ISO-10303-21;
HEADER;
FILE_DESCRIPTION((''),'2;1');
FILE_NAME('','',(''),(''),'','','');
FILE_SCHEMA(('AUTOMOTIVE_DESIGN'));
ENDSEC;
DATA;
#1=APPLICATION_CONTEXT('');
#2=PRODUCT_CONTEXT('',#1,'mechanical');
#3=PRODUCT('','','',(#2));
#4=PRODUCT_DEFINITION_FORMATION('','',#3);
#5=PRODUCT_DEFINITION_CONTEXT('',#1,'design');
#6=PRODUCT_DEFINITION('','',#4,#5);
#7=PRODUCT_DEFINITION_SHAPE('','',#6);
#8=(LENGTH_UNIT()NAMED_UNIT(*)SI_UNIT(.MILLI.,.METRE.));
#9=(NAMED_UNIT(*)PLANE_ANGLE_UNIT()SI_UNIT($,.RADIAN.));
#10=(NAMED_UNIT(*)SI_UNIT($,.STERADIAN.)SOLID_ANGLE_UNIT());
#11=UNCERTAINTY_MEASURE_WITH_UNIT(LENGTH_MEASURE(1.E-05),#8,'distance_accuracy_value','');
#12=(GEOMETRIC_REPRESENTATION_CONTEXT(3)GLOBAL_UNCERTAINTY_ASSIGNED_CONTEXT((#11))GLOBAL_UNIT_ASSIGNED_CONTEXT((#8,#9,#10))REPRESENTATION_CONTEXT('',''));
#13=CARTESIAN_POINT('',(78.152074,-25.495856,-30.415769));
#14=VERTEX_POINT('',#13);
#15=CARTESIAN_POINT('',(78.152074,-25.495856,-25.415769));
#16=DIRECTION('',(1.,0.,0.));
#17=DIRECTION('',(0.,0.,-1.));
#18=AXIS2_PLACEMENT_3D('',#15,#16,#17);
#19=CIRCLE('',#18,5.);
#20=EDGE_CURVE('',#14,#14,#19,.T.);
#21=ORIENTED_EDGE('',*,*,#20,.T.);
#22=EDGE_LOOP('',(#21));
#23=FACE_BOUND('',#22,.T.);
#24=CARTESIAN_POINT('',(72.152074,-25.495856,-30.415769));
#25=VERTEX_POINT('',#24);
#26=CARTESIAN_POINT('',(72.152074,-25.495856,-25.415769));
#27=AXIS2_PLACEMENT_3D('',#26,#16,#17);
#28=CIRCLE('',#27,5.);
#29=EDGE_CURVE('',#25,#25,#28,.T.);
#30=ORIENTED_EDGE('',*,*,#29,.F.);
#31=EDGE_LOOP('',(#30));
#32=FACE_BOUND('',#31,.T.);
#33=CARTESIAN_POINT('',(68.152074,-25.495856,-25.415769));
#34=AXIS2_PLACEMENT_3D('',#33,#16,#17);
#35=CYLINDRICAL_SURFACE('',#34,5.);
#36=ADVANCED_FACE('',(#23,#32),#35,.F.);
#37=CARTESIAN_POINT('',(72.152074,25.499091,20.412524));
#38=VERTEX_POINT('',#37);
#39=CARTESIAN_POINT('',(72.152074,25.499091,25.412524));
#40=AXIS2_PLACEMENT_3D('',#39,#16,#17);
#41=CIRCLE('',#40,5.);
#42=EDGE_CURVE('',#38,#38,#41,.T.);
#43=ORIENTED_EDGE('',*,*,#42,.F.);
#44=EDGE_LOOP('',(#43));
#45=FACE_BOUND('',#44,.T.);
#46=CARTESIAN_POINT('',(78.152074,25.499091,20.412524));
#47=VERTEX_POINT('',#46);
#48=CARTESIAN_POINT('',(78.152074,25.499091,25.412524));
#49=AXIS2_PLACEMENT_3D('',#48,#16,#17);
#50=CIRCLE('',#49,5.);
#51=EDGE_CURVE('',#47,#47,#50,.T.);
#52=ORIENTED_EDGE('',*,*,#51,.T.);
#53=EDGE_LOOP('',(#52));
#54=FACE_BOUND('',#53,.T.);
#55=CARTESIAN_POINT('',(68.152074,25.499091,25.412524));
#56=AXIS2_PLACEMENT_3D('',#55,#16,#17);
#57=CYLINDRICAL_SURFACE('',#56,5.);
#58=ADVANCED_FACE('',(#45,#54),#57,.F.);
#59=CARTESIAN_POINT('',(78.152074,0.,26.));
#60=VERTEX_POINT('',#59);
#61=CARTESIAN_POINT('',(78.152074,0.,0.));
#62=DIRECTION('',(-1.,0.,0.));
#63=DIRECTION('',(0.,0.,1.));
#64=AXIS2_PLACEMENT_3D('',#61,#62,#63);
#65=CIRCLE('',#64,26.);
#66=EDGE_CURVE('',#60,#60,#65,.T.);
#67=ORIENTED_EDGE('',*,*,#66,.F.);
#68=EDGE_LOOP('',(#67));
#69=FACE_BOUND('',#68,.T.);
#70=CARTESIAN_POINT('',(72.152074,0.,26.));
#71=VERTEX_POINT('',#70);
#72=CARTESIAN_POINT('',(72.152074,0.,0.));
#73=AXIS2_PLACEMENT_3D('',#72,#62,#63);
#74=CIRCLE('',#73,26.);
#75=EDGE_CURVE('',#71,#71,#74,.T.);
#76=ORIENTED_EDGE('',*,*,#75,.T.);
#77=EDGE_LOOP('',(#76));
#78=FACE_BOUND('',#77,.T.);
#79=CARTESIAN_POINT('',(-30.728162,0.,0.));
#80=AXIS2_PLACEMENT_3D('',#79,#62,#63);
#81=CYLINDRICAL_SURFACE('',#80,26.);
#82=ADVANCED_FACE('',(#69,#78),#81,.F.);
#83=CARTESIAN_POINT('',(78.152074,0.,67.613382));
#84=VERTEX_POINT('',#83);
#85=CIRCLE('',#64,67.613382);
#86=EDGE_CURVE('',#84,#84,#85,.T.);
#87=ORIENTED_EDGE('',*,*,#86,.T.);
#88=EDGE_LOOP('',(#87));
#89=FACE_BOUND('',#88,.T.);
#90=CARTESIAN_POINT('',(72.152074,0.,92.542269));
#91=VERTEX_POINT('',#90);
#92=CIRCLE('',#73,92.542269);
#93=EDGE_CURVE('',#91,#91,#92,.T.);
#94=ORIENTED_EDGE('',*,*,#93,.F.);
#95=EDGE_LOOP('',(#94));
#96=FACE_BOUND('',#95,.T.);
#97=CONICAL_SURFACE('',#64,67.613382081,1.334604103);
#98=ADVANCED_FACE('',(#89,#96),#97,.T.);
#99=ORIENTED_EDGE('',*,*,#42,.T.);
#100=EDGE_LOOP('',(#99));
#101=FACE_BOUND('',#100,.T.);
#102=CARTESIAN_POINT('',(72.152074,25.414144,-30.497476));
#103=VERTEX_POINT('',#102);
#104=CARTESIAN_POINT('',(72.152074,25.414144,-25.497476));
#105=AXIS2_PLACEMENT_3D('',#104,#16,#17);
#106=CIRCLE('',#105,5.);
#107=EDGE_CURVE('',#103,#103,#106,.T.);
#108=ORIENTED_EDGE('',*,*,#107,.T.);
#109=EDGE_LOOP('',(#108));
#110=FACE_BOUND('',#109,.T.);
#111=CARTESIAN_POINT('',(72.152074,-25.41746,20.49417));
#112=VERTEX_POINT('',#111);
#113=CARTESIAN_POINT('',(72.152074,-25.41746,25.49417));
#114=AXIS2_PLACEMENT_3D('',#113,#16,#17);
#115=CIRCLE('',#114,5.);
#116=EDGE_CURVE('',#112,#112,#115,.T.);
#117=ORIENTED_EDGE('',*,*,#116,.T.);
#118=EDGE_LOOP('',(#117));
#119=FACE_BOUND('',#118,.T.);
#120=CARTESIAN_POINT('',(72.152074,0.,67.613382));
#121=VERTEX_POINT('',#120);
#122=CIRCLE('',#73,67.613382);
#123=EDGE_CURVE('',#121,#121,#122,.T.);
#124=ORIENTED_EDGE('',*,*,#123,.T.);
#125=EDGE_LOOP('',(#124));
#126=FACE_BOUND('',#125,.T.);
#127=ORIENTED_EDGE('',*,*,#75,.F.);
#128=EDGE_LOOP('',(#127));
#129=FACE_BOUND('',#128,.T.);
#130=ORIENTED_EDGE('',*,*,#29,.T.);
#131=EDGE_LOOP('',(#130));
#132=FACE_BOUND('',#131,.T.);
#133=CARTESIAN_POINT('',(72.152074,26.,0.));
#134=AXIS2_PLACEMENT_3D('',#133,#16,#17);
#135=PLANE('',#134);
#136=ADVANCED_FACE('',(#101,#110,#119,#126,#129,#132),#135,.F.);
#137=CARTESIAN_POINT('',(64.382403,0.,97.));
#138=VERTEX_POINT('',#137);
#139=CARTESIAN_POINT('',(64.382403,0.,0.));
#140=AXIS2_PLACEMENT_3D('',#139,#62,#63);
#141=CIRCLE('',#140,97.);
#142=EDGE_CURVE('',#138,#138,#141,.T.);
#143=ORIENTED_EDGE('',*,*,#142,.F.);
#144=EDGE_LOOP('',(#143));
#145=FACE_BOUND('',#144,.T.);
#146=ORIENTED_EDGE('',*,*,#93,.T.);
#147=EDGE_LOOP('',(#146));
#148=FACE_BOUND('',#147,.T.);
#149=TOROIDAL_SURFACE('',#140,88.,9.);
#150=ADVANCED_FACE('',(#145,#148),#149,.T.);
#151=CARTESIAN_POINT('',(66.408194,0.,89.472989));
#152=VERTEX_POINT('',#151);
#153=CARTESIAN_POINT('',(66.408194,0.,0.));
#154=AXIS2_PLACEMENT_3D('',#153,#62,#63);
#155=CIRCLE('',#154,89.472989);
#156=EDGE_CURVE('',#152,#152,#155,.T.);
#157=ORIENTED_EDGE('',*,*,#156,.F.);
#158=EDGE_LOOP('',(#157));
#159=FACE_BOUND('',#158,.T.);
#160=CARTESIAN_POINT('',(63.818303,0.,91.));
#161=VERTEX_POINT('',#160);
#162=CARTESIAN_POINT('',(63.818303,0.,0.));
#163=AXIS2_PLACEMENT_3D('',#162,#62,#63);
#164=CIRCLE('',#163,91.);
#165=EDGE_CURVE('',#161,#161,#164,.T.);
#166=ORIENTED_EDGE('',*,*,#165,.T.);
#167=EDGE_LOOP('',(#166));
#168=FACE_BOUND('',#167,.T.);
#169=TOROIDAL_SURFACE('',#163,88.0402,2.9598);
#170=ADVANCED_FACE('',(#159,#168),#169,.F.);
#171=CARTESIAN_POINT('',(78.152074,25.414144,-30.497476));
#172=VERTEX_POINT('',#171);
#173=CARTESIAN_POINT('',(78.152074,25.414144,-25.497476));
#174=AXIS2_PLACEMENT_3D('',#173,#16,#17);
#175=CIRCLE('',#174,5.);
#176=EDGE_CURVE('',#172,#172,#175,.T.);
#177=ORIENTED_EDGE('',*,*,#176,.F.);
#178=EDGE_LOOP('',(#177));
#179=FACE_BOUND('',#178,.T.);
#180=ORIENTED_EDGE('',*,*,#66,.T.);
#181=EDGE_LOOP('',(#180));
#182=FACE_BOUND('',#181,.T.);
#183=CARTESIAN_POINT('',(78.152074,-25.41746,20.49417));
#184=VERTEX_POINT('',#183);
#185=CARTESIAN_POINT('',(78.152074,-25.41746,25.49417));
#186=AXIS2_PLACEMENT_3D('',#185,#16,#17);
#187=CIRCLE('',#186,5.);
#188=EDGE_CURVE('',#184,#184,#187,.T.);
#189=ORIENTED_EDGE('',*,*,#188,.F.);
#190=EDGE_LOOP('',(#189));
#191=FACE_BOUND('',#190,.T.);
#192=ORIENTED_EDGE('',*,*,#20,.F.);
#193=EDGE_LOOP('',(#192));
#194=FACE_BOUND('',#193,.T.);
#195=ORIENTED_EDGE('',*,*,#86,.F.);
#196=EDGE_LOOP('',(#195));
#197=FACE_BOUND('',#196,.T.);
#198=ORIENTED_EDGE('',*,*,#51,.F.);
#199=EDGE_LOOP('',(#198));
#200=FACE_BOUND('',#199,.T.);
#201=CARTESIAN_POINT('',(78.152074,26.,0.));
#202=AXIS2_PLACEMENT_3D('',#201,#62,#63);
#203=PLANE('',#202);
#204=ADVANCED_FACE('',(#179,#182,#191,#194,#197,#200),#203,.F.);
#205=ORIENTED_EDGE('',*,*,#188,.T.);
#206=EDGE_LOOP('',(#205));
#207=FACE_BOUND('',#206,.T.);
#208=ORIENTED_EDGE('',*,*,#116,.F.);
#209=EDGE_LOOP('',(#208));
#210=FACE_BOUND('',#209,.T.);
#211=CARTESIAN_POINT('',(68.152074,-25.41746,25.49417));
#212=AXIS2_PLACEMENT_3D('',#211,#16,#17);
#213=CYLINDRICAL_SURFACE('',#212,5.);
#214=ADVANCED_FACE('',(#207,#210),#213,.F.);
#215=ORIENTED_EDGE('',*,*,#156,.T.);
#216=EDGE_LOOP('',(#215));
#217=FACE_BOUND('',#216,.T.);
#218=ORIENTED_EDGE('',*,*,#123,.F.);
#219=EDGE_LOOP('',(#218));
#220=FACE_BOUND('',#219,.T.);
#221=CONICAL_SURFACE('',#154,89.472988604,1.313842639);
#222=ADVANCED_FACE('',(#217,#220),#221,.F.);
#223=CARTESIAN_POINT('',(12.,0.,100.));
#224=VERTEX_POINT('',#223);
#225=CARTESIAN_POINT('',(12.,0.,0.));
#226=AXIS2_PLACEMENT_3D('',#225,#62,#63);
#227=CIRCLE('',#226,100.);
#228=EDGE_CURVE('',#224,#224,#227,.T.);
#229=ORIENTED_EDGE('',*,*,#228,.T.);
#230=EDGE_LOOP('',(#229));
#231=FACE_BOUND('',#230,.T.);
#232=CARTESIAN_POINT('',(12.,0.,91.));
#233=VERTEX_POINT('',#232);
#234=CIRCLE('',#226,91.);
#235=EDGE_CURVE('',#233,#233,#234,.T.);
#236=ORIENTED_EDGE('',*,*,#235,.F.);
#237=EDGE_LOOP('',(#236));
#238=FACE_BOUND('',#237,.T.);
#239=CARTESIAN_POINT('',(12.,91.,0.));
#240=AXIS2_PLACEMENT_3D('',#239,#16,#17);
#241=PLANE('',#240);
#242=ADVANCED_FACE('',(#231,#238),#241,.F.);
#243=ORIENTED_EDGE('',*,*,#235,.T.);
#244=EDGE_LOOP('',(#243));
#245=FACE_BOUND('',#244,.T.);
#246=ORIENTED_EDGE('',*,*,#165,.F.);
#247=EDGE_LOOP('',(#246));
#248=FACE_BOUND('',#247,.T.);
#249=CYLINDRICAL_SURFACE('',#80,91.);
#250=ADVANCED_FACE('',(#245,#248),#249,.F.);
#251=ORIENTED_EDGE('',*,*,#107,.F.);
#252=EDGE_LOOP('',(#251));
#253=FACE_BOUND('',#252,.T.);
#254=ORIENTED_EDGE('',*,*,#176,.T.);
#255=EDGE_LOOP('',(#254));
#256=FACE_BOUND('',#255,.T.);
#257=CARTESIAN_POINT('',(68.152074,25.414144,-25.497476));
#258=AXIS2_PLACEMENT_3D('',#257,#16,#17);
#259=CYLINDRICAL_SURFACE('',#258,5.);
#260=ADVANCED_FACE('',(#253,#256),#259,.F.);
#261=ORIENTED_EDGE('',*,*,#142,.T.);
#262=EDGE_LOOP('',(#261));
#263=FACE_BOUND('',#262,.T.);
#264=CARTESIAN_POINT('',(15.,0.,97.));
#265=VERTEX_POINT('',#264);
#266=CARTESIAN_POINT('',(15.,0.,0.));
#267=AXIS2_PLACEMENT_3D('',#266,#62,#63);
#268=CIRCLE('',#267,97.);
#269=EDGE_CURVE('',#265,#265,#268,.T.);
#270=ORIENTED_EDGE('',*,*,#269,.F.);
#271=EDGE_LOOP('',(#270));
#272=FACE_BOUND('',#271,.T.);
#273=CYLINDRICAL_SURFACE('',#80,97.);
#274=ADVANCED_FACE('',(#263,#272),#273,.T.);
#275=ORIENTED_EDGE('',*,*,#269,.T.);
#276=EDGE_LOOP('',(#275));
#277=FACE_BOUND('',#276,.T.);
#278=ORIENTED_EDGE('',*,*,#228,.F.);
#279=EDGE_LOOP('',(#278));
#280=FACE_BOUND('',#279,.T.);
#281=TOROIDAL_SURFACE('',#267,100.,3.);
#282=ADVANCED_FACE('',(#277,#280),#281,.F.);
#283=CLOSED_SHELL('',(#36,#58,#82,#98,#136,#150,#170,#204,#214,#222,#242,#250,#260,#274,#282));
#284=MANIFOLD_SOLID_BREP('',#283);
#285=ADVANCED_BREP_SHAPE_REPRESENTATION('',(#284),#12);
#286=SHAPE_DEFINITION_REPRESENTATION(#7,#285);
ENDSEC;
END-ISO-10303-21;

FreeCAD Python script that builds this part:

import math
import FreeCAD as App
import Part
import Sketcher

doc = App.newDocument("Part")
body = doc.addObject("PartDesign::Body", "Body")

sketch1 = doc.addObject("Sketcher::SketchObject", "Sketch")
body.addObject(sketch1)
sketch1.AttachmentSupport = (doc.XY_Plane, [""])
sketch1.MapMode = "FlatFace"
sketch1.addGeometry([
    Part.LineSegment(App.Vector(64.4, 97, 0), App.Vector(15, 97, 0)),
    Part.ArcOfCircle(Part.Circle(App.Vector(15, 100, 0), App.Vector(0, 0, 1), 3), math.radians(180), math.radians(270)),
    Part.LineSegment(App.Vector(12, 100, 0), App.Vector(12, 91, 0)),
    Part.LineSegment(App.Vector(12, 91, 0), App.Vector(63.8, 91, 0)),
    Part.ArcOfCircle(Part.Circle(App.Vector(63.8, 88, 0), App.Vector(0, 0, 1), 3), math.radians(29), math.radians(90)),
    Part.LineSegment(App.Vector(66.4, 89.5, 0), App.Vector(72.2, 67.6, 0)),
    Part.LineSegment(App.Vector(72.2, 67.6, 0), App.Vector(72.2, 26, 0)),
    Part.LineSegment(App.Vector(72.2, 26, 0), App.Vector(78.2, 26, 0)),
    Part.LineSegment(App.Vector(78.2, 26, 0), App.Vector(78.2, 67.6, 0)),
    Part.LineSegment(App.Vector(78.2, 67.6, 0), App.Vector(72.2, 92.5, 0)),
    Part.ArcOfCircle(Part.Circle(App.Vector(64.4, 88, 0), App.Vector(0, 0, 1), 9), math.radians(30), math.radians(90)),
], False)
sketch1.addConstraint([
    Sketcher.Constraint("Tangent", 0, 2, 1, 2),
    Sketcher.Constraint("Tangent", 1, 1, 2, 1),
    Sketcher.Constraint("Coincident", 2, 2, 3, 1),
    Sketcher.Constraint("Tangent", 3, 2, 4, 2),
    Sketcher.Constraint("Coincident", 4, 1, 5, 1),
    Sketcher.Constraint("Coincident", 5, 2, 6, 1),
    Sketcher.Constraint("Coincident", 6, 2, 7, 1),
    Sketcher.Constraint("Coincident", 7, 2, 8, 1),
    Sketcher.Constraint("Coincident", 8, 2, 9, 1),
    Sketcher.Constraint("Coincident", 9, 2, 10, 1),
    Sketcher.Constraint("Tangent", 10, 2, 0, 1),
    Sketcher.Constraint("Horizontal", 0),
    Sketcher.Constraint("Vertical", 2),
    Sketcher.Constraint("Horizontal", 3),
    Sketcher.Constraint("Vertical", 6),
    Sketcher.Constraint("Horizontal", 7),
    Sketcher.Constraint("Vertical", 8),
    Sketcher.Constraint("Horizontal", 5, 2, 8, 2),
    Sketcher.Constraint("Vertical", 6, 2, 9, 2),
    Sketcher.Constraint("Radius", 1, 3.0),
    Sketcher.Constraint("Radius", 10, 9.0),
    Sketcher.Constraint("DistanceX", 7, 1, 7, 2, 6.0),
    Sketcher.Constraint("DistanceY", 2, 2, 2, 1, 9.0),
    Sketcher.Constraint("DistanceX", -1, 1, 1, 3, 15.0),
    Sketcher.Constraint("DistanceY", -1, 1, 1, 3, 100.0),
    Sketcher.Constraint("DistanceY", -1, 1, 6, 2, 26.0),
    Sketcher.Constraint("Radius", 4, 2.9598),
    Sketcher.Constraint("DistanceX", 4, 3, 10, 3, 0.564099),
    Sketcher.Constraint("Distance", 5, 22.601649),
    Sketcher.Constraint("DistanceX", 0, 2, 0, 1, 49.382403),
    Sketcher.Constraint("DistanceY", 6, 2, 6, 1, 41.613382),
    Sketcher.Constraint("DistanceY", -1, 1, 4, 1, 89.472989),
])
revolution = doc.addObject("PartDesign::Revolution", "Revolution")
body.addObject(revolution)
revolution.Profile = sketch1
revolution.ReferenceAxis = (sketch1, ["H_Axis"])
revolution.Angle = 360

sketch2 = doc.addObject("Sketcher::SketchObject", "Sketch001")
body.addObject(sketch2)
sketch2.AttachmentSupport = (doc.YZ_Plane, [""])
sketch2.MapMode = "FlatFace"
sketch2.AttachmentOffset = App.Placement(App.Vector(0, 0, 78.152074), App.Rotation())
sketch2.addGeometry([
    Part.Circle(App.Vector(25, 25, 0), App.Vector(0, 0, 1), 5),
    Part.Circle(App.Vector(25, -25, 0), App.Vector(0, 0, 1), 5),
    Part.Circle(App.Vector(-25, -25, 0), App.Vector(0, 0, 1), 5),
    Part.Circle(App.Vector(-25, 25, 0), App.Vector(0, 0, 1), 5),
], False)
sketch2.addConstraint([
    Sketcher.Constraint("Equal", 0, 1),
    Sketcher.Constraint("Equal", 1, 2),
    Sketcher.Constraint("Equal", 2, 3),
    Sketcher.Constraint("Diameter", 0, 10.0),
    Sketcher.Constraint("DistanceY", 1, 3, 0, 3, 50.91),
    Sketcher.Constraint("DistanceX", 2, 3, 1, 3, 50.91),
    Sketcher.Constraint("DistanceX", -1, 1, 0, 3, 25.499091),
    Sketcher.Constraint("DistanceY", 2, 3, -1, 1, 25.415769),
    Sketcher.Constraint("DistanceX", 3, 3, -1, 1, 25.41746),
    Sketcher.Constraint("DistanceY", -1, 1, 3, 3, 25.49417),
    Sketcher.Constraint("DistanceY", -1, 1, 0, 3, 25.412524),
    Sketcher.Constraint("DistanceX", -1, 1, 1, 3, 25.414144),
])
pocket1 = doc.addObject("PartDesign::Pocket", "Pocket")
body.addObject(pocket1)
pocket1.Profile = sketch2
pocket1.Length = 10

doc.recompute()
